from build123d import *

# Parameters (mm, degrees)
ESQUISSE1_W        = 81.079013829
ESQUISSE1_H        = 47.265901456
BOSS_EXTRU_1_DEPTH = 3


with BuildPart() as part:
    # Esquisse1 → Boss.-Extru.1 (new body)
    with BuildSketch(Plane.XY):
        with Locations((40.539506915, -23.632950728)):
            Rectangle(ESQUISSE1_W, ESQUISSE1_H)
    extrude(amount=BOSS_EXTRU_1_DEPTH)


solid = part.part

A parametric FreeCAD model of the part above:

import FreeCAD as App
import Part
import Sketcher
from FreeCAD import Vector
Q = App.Units.Quantity


def add_polygon(sketch, points):
    """Adds a closed chain of lines whose ends are joined by coincident constraints."""
    first, n = sketch.GeometryCount, len(points)
    for a, b in zip(points, points[1:] + points[:1]):
        sketch.addGeometry(Part.LineSegment(App.Vector(*a, 0), App.Vector(*b, 0)), False)
    for i in range(n):
        sketch.addConstraint(Sketcher.Constraint("Coincident", first + i, 2, first + (i + 1) % n, 1))

doc = App.newDocument("Part")
body = doc.addObject("PartDesign::Body", "Body")

sketch1 = body.newObject("Sketcher::SketchObject", "Sketch")
sketch1.AttachmentSupport = (doc.getObject("XY_Plane"), [""])
sketch1.MapMode = "FlatFace"
add_polygon(sketch1, [(0, 0), (0, -47), (81, -47), (81, 0)])
sketch1.addConstraint(Sketcher.Constraint("Vertical", 0))
sketch1.addConstraint(Sketcher.Constraint("Horizontal", 1))
sketch1.addConstraint(Sketcher.Constraint("Vertical", 2))
sketch1.addConstraint(Sketcher.Constraint("Horizontal", 3))
sketch1.addConstraint(Sketcher.Constraint("Coincident", 3, 2, -1, 1))
sketch1.addConstraint(Sketcher.Constraint("DistanceY", 0, 2, 0, 1, Q("47.265901 mm")))
sketch1.addConstraint(Sketcher.Constraint("DistanceX", 1, 1, 1, 2, Q("81.079014 mm")))
pad1 = body.newObject("PartDesign::Pad", "Pad")
pad1.Profile = sketch1
pad1.Length = 3

doc.recompute()
